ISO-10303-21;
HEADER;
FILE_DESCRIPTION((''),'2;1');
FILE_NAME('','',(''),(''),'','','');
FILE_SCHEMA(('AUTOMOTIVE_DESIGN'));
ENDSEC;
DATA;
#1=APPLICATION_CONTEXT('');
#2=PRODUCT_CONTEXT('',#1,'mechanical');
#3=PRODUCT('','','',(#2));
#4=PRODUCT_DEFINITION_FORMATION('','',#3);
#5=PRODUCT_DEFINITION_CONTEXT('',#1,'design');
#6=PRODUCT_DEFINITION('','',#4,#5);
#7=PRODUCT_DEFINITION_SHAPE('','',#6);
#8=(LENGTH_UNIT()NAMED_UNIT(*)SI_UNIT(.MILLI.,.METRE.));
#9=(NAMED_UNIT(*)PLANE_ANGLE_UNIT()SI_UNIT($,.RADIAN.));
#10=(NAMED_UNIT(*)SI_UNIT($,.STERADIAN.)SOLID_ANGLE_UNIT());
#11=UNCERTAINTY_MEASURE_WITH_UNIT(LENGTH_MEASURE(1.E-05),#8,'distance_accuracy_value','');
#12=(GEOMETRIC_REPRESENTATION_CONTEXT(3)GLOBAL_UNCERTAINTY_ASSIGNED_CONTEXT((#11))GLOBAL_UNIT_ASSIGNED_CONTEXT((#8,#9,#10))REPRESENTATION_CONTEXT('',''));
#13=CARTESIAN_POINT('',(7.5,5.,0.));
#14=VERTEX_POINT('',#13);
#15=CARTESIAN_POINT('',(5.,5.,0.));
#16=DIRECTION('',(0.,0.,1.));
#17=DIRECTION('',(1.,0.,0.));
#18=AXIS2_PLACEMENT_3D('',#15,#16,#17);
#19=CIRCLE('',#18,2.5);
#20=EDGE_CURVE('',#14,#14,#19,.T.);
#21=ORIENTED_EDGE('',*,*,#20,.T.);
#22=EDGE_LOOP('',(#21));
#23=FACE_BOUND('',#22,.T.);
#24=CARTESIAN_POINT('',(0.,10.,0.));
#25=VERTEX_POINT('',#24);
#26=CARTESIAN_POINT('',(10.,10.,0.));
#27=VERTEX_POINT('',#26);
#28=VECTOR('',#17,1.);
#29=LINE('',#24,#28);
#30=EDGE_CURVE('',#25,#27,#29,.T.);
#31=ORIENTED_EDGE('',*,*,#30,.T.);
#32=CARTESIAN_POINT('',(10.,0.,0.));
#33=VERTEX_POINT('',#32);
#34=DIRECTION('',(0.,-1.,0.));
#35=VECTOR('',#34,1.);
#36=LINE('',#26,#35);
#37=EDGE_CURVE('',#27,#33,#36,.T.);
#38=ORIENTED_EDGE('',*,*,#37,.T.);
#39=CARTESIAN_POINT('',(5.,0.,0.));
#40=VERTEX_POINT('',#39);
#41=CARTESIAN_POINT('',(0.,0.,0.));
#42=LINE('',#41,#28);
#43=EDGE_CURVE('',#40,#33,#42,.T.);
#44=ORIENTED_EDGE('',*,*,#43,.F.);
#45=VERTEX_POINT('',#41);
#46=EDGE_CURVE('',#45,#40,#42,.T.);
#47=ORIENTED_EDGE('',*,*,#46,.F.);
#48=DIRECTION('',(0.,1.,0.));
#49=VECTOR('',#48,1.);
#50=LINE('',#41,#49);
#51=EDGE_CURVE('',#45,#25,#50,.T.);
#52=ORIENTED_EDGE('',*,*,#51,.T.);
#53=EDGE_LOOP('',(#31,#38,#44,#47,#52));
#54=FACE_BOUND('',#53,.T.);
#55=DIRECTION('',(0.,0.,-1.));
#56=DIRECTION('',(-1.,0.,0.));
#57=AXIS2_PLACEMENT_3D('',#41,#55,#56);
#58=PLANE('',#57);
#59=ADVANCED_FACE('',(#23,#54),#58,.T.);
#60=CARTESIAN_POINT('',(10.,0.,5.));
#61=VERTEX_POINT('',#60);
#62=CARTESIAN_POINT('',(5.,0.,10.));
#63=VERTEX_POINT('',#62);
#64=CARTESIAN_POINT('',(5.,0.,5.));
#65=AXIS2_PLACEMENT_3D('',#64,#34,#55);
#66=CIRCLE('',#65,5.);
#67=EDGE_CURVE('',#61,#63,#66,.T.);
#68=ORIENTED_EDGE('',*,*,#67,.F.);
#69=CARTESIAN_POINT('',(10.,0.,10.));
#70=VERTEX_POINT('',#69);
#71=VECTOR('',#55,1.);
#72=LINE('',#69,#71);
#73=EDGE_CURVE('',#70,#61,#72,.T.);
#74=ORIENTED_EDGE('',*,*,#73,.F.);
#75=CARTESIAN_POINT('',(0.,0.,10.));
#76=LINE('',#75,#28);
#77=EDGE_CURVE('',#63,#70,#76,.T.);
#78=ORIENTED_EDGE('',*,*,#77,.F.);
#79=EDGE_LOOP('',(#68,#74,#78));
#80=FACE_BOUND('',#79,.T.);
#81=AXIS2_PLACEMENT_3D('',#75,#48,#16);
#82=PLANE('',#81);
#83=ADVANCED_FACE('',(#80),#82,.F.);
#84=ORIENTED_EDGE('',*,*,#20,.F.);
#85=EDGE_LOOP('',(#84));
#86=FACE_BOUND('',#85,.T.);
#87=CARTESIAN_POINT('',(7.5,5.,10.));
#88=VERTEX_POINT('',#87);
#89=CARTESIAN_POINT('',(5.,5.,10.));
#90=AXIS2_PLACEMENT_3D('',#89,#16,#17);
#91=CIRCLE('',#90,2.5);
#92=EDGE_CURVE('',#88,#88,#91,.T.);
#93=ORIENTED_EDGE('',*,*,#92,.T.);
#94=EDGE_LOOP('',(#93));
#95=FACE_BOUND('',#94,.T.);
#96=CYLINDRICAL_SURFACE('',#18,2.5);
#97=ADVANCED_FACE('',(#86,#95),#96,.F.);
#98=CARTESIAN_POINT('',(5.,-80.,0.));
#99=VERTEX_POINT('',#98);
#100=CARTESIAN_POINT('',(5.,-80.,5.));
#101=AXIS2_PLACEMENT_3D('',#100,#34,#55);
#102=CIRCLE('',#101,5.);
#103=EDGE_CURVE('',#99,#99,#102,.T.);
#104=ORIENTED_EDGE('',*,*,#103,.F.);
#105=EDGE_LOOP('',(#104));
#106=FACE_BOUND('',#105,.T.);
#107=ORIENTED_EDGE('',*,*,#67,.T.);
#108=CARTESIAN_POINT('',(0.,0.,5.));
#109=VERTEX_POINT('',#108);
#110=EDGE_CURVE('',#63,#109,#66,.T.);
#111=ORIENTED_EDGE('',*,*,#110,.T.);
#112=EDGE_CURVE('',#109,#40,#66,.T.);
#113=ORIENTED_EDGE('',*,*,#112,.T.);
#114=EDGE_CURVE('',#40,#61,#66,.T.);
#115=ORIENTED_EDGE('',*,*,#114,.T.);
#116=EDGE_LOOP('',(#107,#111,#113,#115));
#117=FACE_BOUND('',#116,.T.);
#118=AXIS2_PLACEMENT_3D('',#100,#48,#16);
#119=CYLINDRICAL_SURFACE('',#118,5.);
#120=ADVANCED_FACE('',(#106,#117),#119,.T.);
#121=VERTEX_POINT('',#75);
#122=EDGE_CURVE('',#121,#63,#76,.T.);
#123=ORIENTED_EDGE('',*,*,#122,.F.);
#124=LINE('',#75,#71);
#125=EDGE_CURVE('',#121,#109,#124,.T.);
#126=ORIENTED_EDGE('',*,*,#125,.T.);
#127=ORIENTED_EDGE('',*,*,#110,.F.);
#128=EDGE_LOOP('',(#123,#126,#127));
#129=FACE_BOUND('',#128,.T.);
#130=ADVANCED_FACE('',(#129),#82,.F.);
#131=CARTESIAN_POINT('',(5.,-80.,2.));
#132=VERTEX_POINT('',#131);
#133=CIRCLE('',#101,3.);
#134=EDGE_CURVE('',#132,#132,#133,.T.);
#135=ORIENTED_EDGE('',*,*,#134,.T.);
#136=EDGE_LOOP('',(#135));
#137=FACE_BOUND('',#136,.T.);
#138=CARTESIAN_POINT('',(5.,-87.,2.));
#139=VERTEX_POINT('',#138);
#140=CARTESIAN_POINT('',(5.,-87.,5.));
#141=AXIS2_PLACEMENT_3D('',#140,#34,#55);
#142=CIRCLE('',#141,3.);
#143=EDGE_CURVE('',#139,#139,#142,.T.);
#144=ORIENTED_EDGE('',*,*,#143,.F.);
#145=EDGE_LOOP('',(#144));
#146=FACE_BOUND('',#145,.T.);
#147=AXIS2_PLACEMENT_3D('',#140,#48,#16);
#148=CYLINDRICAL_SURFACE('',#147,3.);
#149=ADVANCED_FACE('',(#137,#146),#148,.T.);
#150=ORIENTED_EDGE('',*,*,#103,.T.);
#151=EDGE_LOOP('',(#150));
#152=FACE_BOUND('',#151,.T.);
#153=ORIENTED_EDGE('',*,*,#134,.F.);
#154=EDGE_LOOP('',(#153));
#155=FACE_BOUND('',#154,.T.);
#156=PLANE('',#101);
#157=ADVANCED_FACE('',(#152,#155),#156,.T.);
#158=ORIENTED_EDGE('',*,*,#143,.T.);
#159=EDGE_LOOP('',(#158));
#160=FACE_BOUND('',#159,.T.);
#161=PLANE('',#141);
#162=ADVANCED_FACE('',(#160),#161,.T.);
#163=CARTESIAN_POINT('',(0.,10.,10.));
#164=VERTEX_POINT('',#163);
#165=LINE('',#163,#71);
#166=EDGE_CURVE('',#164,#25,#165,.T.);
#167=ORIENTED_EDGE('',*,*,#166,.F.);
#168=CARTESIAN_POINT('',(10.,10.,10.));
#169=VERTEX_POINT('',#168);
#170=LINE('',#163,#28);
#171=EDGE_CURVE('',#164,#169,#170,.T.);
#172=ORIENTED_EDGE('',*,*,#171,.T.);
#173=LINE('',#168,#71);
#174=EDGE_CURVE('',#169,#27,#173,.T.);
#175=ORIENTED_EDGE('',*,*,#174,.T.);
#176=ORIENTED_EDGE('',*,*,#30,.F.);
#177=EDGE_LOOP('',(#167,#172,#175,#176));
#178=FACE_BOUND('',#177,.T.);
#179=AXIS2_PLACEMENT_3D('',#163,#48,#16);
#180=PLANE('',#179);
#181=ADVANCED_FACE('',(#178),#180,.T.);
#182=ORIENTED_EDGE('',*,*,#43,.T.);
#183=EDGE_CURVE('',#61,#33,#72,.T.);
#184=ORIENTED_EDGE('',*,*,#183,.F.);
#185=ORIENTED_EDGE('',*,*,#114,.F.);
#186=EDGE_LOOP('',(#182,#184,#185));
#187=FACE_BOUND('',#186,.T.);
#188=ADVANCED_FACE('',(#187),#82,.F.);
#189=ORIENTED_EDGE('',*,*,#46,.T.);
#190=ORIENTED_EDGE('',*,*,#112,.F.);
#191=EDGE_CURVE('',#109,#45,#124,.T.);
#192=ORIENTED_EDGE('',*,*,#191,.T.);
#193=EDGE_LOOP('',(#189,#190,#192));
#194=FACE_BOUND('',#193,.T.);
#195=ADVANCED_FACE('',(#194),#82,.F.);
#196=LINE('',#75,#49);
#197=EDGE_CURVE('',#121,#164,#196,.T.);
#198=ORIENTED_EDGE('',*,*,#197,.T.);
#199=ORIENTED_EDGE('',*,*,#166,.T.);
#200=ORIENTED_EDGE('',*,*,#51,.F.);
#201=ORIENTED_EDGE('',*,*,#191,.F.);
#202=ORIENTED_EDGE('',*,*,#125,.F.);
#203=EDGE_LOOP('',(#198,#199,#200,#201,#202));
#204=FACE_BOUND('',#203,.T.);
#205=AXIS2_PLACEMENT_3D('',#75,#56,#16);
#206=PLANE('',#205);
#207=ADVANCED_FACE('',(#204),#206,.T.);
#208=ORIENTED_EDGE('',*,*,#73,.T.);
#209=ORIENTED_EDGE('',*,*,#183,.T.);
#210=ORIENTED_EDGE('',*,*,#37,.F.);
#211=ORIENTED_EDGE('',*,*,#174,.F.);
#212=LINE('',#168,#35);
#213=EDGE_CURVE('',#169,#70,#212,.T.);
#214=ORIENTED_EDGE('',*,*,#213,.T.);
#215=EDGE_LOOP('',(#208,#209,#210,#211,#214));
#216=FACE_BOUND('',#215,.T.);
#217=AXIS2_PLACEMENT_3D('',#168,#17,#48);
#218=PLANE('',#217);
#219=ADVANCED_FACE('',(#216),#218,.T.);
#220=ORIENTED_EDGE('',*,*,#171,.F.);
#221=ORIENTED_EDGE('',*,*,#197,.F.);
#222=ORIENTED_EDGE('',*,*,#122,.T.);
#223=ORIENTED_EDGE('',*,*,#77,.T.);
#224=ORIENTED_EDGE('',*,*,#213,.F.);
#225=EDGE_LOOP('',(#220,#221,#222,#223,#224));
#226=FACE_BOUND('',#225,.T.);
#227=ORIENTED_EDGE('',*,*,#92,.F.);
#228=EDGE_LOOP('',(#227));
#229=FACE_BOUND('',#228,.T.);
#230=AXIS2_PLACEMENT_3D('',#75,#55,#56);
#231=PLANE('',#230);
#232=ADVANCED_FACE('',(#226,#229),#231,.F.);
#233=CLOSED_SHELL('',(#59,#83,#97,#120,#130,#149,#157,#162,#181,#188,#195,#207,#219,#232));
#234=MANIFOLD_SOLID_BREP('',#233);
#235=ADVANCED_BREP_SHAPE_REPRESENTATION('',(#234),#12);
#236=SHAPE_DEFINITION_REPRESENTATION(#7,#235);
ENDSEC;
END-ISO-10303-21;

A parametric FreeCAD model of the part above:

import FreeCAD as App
import Part
import Sketcher
from FreeCAD import Vector
Q = App.Units.Quantity


def add_polygon(sketch, points):
    """Adds a closed chain of lines whose ends are joined by coincident constraints."""
    first, n = sketch.GeometryCount, len(points)
    for a, b in zip(points, points[1:] + points[:1]):
        sketch.addGeometry(Part.LineSegment(App.Vector(*a, 0), App.Vector(*b, 0)), False)
    for i in range(n):
        sketch.addConstraint(Sketcher.Constraint("Coincident", first + i, 2, first + (i + 1) % n, 1))

doc = App.newDocument("Part")
body = doc.addObject("PartDesign::Body", "Body")

sketch1 = doc.addObject("Sketcher::SketchObject", "Sketch")
body.addObject(sketch1)
sketch1.AttachmentSupport = (doc.XY_Plane, [""])
sketch1.MapMode = "FlatFace"
add_polygon(sketch1, [(0, 10), (0, 0), (10, 0), (10, 10)])
sketch1.addConstraint([
    Sketcher.Constraint("Vertical", 0),
    Sketcher.Constraint("Horizontal", 1),
    Sketcher.Constraint("Vertical", 2),
    Sketcher.Constraint("Horizontal", 3),
    Sketcher.Constraint("Coincident", 0, 2, -1, 1),
    Sketcher.Constraint("Equal", 3, 0),
    Sketcher.Constraint("DistanceX", 1, 1, 1, 2, Q("10 mm")),
])
pad1 = doc.addObject("PartDesign::Pad", "Pad")
body.addObject(pad1)
pad1.Profile = sketch1
pad1.Length = 10

sketch2 = doc.addObject("Sketcher::SketchObject", "Sketch001")
body.addObject(sketch2)
sketch2.AttachmentSupport = (doc.XY_Plane, [""])
sketch2.MapMode = "FlatFace"
sketch2.AttachmentOffset = App.Placement(Vector(0, 0, 10), App.Rotation())
sketch2.addGeometry(Part.Circle(Vector(5, 5, 0), Vector(0, 0, 1), 2.5), False)
sketch2.addConstraint([
    Sketcher.Constraint("Diameter", 0, Q("5 mm")),
    Sketcher.Constraint("DistanceX", -1, 1, 0, 3, Q("5 mm")),
    Sketcher.Constraint("DistanceY", -1, 1, 0, 3, Q("5 mm")),
])
pocket1 = doc.addObject("PartDesign::Pocket", "Pocket")
body.addObject(pocket1)
pocket1.Profile = sketch2
pocket1.Length = 10

sketch3 = doc.addObject("Sketcher::SketchObject", "Sketch002")
body.addObject(sketch3)
sketch3.AttachmentSupport = (doc.XZ_Plane, [""])
sketch3.MapMode = "FlatFace"
sketch3.addGeometry(Part.Circle(Vector(5, 5, 0), Vector(0, 0, 1), 5), False)
sketch3.addConstraint([
    Sketcher.Constraint("Diameter", 0, Q("10 mm")),
    Sketcher.Constraint("DistanceX", -1, 1, 0, 3, Q("5 mm")),
    Sketcher.Constraint("DistanceY", -1, 1, 0, 3, Q("5 mm")),
])
pad2 = doc.addObject("PartDesign::Pad", "Pad001")
body.addObject(pad2)
pad2.Profile = sketch3
pad2.Length = 80

sketch4 = doc.addObject("Sketcher::SketchObject", "Sketch003")
body.addObject(sketch4)
sketch4.AttachmentSupport = (doc.XZ_Plane, [""])
sketch4.MapMode = "FlatFace"
sketch4.AttachmentOffset = App.Placement(Vector(0, 0, 80), App.Rotation())
sketch4.addGeometry(Part.Circle(Vector(5, 5, 0), Vector(0, 0, 1), 3), False)
sketch4.addConstraint([
    Sketcher.Constraint("Diameter", 0, Q("6 mm")),
    Sketcher.Constraint("DistanceX", -1, 1, 0, 3, Q("5 mm")),
    Sketcher.Constraint("DistanceY", -1, 1, 0, 3, Q("5 mm")),
])
pad3 = doc.addObject("PartDesign::Pad", "Pad002")
body.addObject(pad3)
pad3.Profile = sketch4
pad3.Length = 7

doc.recompute()
